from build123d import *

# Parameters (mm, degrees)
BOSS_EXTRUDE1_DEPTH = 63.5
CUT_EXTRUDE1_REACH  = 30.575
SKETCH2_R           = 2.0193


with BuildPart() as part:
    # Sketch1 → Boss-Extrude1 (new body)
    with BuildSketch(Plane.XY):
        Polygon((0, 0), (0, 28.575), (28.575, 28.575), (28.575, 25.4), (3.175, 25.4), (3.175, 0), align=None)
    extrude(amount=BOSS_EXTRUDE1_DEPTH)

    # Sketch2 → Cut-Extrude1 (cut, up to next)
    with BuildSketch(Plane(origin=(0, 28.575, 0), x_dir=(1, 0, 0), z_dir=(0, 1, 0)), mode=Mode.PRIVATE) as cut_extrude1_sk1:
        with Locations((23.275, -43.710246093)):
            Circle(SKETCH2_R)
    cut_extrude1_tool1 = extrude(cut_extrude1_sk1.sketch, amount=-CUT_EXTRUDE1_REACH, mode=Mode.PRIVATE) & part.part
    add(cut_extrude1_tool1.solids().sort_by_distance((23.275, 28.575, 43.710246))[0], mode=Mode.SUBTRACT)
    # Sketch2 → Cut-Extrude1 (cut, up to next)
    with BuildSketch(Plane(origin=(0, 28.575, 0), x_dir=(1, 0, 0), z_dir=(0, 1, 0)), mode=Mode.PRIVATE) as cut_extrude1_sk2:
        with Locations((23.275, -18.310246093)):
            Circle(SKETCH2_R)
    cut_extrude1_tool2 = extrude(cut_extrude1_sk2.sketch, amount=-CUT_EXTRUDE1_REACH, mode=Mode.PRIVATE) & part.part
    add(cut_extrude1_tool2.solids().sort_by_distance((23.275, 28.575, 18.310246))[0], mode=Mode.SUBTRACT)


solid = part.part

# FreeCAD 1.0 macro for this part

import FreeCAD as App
import Part
import Sketcher
Q = App.Units.Quantity

doc = App.newDocument("Part")
body = doc.addObject("PartDesign::Body", "Body")

sketch1 = doc.addObject("Sketcher::SketchObject", "Sketch")
body.addObject(sketch1)
sketch1.AttachmentSupport = (doc.XY_Plane, [""])
sketch1.MapMode = "FlatFace"
sketch1.addGeometry(Part.LineSegment(App.Vector(0, 28.6, 0), App.Vector(0, 0, 0)), False)
sketch1.addGeometry(Part.LineSegment(App.Vector(0, 0, 0), App.Vector(3.2, 0, 0)), False)
sketch1.addGeometry(Part.LineSegment(App.Vector(3.2, 0, 0), App.Vector(3.2, 25.4, 0)), False)
sketch1.addGeometry(Part.LineSegment(App.Vector(3.2, 25.4, 0), App.Vector(28.6, 25.4, 0)), False)
sketch1.addGeometry(Part.LineSegment(App.Vector(28.6, 25.4, 0), App.Vector(28.6, 28.6, 0)), False)
sketch1.addGeometry(Part.LineSegment(App.Vector(28.6, 28.6, 0), App.Vector(0, 28.6, 0)), False)
sketch1.addConstraint(Sketcher.Constraint("Coincident", 0, 2, 1, 1))
sketch1.addConstraint(Sketcher.Constraint("Coincident", 1, 2, 2, 1))
sketch1.addConstraint(Sketcher.Constraint("Coincident", 2, 2, 3, 1))
sketch1.addConstraint(Sketcher.Constraint("Coincident", 3, 2, 4, 1))
sketch1.addConstraint(Sketcher.Constraint("Coincident", 4, 2, 5, 1))
sketch1.addConstraint(Sketcher.Constraint("Coincident", 5, 2, 0, 1))
sketch1.addConstraint(Sketcher.Constraint("Vertical", 0))
sketch1.addConstraint(Sketcher.Constraint("Horizontal", 1))
sketch1.addConstraint(Sketcher.Constraint("Vertical", 2))
sketch1.addConstraint(Sketcher.Constraint("Horizontal", 3))
sketch1.addConstraint(Sketcher.Constraint("Vertical", 4))
sketch1.addConstraint(Sketcher.Constraint("Horizontal", 5))
sketch1.addConstraint(Sketcher.Constraint("Coincident", 0, 2, -1, 1))
sketch1.addConstraint(Sketcher.Constraint("Equal", 5, 0))
sketch1.addConstraint(Sketcher.Constraint("Equal", 3, 2))
sketch1.addConstraint(Sketcher.Constraint("DistanceX", 3, 1, 3, 2, Q("1 in")))
sketch1.addConstraint(Sketcher.Constraint("DistanceX", 1, 1, 1, 2, Q("0.125 in")))
pad1 = doc.addObject("PartDesign::Pad", "Pad")
body.addObject(pad1)
pad1.Profile = sketch1
pad1.Length = Q("2.5 in")

sketch2 = doc.addObject("Sketcher::SketchObject", "Sketch001")
body.addObject(sketch2)
sketch2.AttachmentSupport = (doc.XZ_Plane, [""])
sketch2.MapMode = "FlatFace"
sketch2.AttachmentOffset = App.Placement(App.Vector(0, 0, -1.125 * 25.4), App.Rotation())
sketch2.addGeometry(Part.Circle(App.Vector(23.3, 43.7, 0), App.Vector(0, 0, 1), 2), False)
sketch2.addConstraint(Sketcher.Constraint("Diameter", 0, Q("0.159 in")))
sketch2.addConstraint(Sketcher.Constraint("DistanceX", -1, 1, 0, 3, Q("23.275 mm")))
sketch2.addConstraint(Sketcher.Constraint("DistanceY", -1, 1, 0, 3, Q("43.710246 mm")))
pocket1 = doc.addObject("PartDesign::Pocket", "Pocket")
body.addObject(pocket1)
pocket1.Profile = sketch2
pocket1.Type = "UpToFirst"
pocket1.Reversed = True

sketch3 = doc.addObject("Sketcher::SketchObject", "Sketch002")
body.addObject(sketch3)
sketch3.AttachmentSupport = (doc.XZ_Plane, [""])
sketch3.MapMode = "FlatFace"
sketch3.AttachmentOffset = App.Placement(App.Vector(0, 0, -1.125 * 25.4), App.Rotation())
sketch3.addGeometry(Part.Circle(App.Vector(23.3, 18.3, 0), App.Vector(0, 0, 1), 2), False)
sketch3.addConstraint(Sketcher.Constraint("Diameter", 0, Q("0.159 in")))
sketch3.addConstraint(Sketcher.Constraint("DistanceX", -1, 1, 0, 3, Q("23.275 mm")))
sketch3.addConstraint(Sketcher.Constraint("DistanceY", -1, 1, 0, 3, Q("18.310246 mm")))
pocket2 = doc.addObject("PartDesign::Pocket", "Pocket001")
body.addObject(pocket2)
pocket2.Profile = sketch3
pocket2.Type = "UpToFirst"
pocket2.Reversed = True

doc.recompute()
